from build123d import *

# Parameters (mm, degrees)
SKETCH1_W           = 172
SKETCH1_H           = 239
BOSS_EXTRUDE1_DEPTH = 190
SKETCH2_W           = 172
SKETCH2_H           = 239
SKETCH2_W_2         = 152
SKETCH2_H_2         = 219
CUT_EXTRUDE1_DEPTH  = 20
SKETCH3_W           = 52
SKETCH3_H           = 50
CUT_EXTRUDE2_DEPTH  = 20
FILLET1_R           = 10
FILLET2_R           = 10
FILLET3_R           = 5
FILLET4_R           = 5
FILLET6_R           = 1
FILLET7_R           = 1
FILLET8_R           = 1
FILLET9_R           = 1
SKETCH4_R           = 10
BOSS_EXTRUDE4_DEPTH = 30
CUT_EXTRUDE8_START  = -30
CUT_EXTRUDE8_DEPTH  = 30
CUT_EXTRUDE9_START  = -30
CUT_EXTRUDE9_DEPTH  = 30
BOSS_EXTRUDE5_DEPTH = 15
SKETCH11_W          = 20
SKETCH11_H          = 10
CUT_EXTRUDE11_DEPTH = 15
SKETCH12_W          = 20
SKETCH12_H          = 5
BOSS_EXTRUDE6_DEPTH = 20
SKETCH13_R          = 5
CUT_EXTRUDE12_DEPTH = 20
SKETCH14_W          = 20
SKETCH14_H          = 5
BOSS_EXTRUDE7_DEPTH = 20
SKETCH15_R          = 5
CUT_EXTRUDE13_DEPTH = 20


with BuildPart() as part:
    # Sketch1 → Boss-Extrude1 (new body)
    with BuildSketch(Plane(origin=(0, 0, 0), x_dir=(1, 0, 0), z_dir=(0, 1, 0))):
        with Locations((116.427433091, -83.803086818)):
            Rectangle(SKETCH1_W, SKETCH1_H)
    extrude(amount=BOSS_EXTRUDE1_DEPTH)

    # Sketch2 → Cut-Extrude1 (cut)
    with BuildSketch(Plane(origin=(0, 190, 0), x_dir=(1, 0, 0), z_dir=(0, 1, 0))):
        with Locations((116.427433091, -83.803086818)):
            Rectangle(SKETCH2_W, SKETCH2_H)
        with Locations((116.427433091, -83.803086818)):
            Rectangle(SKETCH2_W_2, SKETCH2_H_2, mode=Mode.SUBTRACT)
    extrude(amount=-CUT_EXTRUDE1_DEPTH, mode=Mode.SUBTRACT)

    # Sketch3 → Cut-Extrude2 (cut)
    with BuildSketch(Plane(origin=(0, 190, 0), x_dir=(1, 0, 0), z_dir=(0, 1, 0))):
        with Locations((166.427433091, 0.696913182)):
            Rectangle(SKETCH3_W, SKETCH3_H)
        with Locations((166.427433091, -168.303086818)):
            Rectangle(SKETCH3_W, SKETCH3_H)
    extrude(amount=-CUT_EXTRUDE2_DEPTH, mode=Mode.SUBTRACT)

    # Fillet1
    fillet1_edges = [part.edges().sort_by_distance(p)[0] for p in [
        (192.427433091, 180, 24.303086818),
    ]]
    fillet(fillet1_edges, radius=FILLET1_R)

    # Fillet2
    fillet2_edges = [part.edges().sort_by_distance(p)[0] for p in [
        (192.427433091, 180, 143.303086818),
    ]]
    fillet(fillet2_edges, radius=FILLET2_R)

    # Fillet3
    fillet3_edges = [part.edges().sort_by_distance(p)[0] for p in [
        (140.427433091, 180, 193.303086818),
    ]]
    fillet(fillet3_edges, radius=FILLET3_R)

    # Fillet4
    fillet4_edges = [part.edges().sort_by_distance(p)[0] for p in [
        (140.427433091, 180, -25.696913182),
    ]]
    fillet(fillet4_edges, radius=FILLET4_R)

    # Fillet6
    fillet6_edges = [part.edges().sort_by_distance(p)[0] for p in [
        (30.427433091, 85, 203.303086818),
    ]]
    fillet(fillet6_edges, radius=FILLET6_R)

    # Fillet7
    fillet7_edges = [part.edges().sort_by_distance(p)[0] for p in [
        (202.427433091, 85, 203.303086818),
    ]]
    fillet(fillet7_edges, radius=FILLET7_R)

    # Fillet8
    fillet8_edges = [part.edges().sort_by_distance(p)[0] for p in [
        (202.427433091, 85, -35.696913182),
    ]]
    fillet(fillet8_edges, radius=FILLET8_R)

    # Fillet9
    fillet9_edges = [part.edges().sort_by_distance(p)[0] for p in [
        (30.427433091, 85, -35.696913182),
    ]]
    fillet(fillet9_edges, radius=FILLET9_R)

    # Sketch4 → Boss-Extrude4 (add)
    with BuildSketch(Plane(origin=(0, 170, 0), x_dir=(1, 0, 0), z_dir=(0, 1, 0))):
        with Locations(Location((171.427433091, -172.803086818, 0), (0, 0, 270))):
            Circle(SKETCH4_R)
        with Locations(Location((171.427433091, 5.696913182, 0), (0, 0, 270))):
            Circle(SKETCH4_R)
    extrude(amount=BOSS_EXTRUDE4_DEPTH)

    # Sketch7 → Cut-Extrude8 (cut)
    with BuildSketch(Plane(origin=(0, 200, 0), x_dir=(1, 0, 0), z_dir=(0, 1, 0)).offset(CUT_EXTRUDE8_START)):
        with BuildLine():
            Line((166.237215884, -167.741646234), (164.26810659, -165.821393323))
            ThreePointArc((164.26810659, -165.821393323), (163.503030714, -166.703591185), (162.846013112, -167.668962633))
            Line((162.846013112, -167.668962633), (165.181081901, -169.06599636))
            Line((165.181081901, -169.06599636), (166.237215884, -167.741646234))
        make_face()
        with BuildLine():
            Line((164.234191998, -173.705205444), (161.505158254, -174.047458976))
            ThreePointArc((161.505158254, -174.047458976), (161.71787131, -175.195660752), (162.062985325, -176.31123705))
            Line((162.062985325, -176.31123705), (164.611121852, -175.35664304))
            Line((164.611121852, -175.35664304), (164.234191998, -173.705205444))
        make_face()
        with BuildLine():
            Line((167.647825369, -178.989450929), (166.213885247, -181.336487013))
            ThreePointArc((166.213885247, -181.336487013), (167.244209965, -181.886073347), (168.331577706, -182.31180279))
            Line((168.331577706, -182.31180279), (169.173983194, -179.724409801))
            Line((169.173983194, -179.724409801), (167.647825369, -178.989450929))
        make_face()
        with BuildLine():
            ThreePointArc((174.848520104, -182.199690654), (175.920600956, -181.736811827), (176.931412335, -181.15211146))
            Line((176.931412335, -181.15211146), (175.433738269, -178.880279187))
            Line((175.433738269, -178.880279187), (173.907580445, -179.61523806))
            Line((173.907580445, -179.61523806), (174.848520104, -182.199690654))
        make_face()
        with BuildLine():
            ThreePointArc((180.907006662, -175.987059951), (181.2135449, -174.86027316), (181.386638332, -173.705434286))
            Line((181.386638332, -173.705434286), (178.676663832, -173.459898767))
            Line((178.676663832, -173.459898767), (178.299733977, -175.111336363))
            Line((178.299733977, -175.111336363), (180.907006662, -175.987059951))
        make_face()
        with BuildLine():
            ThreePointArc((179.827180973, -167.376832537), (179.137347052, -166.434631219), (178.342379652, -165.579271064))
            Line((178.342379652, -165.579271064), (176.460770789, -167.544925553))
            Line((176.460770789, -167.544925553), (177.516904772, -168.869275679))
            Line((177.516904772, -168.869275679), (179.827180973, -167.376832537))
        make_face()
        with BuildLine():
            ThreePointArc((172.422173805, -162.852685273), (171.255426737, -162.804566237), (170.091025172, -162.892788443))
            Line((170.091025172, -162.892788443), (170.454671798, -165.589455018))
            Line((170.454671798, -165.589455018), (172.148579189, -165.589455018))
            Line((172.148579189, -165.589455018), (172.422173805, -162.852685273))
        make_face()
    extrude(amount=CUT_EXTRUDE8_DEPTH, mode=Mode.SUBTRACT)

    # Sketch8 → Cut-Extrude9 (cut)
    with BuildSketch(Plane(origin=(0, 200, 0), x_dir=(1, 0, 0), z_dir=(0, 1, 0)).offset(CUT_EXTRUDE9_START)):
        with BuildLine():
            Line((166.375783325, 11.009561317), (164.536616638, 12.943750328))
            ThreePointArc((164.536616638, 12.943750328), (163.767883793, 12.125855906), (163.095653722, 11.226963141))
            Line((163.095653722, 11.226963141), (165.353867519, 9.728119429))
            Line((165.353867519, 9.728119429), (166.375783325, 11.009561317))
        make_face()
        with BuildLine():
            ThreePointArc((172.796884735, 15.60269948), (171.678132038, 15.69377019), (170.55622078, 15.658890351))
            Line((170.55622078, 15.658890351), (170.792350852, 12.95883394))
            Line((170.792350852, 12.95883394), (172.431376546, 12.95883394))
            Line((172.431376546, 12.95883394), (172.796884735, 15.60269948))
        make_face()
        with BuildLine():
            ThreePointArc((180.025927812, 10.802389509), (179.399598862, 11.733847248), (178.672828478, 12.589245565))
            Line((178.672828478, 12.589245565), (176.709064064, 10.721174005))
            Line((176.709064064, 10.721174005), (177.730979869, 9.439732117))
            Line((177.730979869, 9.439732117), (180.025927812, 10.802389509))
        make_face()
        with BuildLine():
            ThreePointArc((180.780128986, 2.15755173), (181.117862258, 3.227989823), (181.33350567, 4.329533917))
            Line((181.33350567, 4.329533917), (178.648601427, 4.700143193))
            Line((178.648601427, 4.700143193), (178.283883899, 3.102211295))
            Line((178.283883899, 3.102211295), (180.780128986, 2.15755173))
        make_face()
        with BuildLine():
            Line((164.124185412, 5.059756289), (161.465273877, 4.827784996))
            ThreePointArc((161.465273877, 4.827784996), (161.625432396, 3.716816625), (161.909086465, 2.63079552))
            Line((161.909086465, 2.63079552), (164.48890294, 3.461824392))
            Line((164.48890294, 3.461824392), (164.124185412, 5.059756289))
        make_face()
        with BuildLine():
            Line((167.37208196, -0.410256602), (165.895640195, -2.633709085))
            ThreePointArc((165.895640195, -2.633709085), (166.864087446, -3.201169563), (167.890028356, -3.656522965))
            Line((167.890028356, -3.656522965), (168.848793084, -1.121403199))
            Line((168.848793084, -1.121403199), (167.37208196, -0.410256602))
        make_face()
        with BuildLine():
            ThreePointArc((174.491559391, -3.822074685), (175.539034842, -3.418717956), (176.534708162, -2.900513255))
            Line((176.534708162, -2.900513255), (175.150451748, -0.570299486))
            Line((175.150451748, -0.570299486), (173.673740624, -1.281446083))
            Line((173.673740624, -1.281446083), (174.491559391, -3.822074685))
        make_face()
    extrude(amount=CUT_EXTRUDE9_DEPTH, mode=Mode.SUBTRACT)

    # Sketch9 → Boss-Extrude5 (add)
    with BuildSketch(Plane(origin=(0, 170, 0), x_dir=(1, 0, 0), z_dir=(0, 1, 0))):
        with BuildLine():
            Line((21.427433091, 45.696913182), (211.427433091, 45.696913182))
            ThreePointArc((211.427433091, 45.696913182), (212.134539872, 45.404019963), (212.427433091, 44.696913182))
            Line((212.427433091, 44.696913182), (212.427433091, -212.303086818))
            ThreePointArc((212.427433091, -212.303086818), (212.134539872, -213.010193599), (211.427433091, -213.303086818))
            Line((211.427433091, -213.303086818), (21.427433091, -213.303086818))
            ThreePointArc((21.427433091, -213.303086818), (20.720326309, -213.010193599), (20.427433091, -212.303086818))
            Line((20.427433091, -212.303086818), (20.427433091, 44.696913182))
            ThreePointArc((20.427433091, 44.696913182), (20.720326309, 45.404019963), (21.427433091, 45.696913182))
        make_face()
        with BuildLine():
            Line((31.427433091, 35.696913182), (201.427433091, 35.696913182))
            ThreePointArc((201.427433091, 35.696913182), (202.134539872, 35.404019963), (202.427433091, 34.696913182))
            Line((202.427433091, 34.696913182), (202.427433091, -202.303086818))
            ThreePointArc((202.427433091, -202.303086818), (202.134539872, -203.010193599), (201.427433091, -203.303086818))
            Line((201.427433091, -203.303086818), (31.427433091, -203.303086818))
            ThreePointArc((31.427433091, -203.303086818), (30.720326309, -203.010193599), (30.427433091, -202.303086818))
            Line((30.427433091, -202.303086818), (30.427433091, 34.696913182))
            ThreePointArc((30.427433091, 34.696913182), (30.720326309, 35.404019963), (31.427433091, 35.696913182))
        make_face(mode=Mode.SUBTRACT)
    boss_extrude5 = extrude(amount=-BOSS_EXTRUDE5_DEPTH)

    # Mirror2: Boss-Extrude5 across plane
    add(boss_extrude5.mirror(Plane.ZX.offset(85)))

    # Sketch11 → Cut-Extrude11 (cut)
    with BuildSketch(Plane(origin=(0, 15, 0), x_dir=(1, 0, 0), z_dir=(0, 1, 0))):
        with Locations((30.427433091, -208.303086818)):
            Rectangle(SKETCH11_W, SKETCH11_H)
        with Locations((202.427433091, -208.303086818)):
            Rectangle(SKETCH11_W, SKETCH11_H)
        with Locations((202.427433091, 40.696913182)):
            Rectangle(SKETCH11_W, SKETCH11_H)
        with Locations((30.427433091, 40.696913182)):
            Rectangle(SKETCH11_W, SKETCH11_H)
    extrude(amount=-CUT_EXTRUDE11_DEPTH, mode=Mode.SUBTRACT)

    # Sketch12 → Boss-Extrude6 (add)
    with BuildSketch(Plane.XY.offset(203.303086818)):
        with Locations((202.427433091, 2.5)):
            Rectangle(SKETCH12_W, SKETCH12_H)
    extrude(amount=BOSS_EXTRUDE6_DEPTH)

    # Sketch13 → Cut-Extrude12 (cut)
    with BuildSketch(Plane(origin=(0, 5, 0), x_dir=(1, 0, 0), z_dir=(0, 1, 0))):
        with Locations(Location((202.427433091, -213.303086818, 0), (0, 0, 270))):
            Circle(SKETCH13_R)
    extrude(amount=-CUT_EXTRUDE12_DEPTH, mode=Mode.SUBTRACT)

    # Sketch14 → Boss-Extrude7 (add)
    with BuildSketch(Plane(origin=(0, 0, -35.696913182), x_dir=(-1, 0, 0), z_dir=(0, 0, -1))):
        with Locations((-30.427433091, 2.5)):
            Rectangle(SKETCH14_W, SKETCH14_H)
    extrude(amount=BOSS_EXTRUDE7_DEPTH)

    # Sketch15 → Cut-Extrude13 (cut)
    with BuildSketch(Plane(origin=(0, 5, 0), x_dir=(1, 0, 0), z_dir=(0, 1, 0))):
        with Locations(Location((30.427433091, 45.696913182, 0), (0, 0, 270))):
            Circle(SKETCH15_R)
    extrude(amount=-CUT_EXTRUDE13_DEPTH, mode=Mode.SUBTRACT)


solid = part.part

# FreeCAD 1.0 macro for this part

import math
import FreeCAD as App
import Part
import Sketcher

V = App.Vector


def edges_at(feature, points):
    """Names of the edges that pass closest to the given points."""
    edges = feature.Shape.Edges
    near = lambda p: min(range(len(edges)), key=lambda i: edges[i].distToShape(Part.Vertex(*p))[0])
    return sorted({f"Edge{near(p) + 1}" for p in points})


def add_polygon(sketch, points):
    """Adds a closed chain of lines whose ends are joined by coincident constraints."""
    first, n = sketch.GeometryCount, len(points)
    for a, b in zip(points, points[1:] + points[:1]):
        sketch.addGeometry(Part.LineSegment(App.Vector(*a, 0), App.Vector(*b, 0)), False)
    for i in range(n):
        sketch.addConstraint(Sketcher.Constraint("Coincident", first + i, 2, first + (i + 1) % n, 1))

doc = App.newDocument("Part")
body = doc.addObject("PartDesign::Body", "Body")

# Sketch on XZ plane
sketch1 = doc.addObject("Sketcher::SketchObject", "Sketch")
body.addObject(sketch1)
sketch1.AttachmentSupport = (doc.XZ_Plane, [""])
sketch1.MapMode = "FlatFace"
add_polygon(sketch1, [(30, -36), (30, 203), (202, 203), (202, -36)])  # lines 0-3
sketch1.addConstraint(Sketcher.Constraint("Vertical", 0))
sketch1.addConstraint(Sketcher.Constraint("Horizontal", 1))
sketch1.addConstraint(Sketcher.Constraint("Vertical", 2))
sketch1.addConstraint(Sketcher.Constraint("Horizontal", 3))
sketch1.addConstraint(Sketcher.Constraint("DistanceX", 1, 1, 1, 2, 172.0))
sketch1.addConstraint(Sketcher.Constraint("DistanceY", 0, 1, 0, 2, 239.0))
sketch1.addConstraint(Sketcher.Constraint("DistanceX", -1, 1, 0, 2, 30.427433))
sketch1.addConstraint(Sketcher.Constraint("DistanceY", -1, 1, 0, 2, 203.303087))
pad1 = doc.addObject("PartDesign::Pad", "Pad")
body.addObject(pad1)
pad1.Profile = sketch1
pad1.Length = 190
pad1.Reversed = True

# Sketch on XZ plane
sketch2 = doc.addObject("Sketcher::SketchObject", "Sketch001")
body.addObject(sketch2)
sketch2.AttachmentSupport = (doc.XZ_Plane, [""])
sketch2.MapMode = "FlatFace"
sketch2.AttachmentOffset = App.Placement(V(0, 0, -190), App.Rotation())
add_polygon(sketch2, [(30, -36), (30, 203), (202, 203), (202, -36)])  # lines 0-3
add_polygon(sketch2, [(192, 193), (40, 193), (40, -26), (192, -26)])  # lines 4-7
sketch2.addConstraint(Sketcher.Constraint("Vertical", 0))
sketch2.addConstraint(Sketcher.Constraint("Horizontal", 1))
sketch2.addConstraint(Sketcher.Constraint("Vertical", 2))
sketch2.addConstraint(Sketcher.Constraint("Horizontal", 3))
sketch2.addConstraint(Sketcher.Constraint("Horizontal", 4))
sketch2.addConstraint(Sketcher.Constraint("Vertical", 5))
sketch2.addConstraint(Sketcher.Constraint("Horizontal", 6))
sketch2.addConstraint(Sketcher.Constraint("Vertical", 7))
sketch2.addConstraint(Sketcher.Constraint("DistanceX", 1, 1, 1, 2, 172.0))
sketch2.addConstraint(Sketcher.Constraint("DistanceX", 4, 2, 4, 1, 152.0))
sketch2.addConstraint(Sketcher.Constraint("DistanceY", 0, 1, 0, 2, 239.0))
sketch2.addConstraint(Sketcher.Constraint("DistanceY", 5, 2, 5, 1, 219.0))
sketch2.addConstraint(Sketcher.Constraint("DistanceX", 0, 2, 4, 2, 10.0))
sketch2.addConstraint(Sketcher.Constraint("DistanceY", 4, 2, 0, 2, 10.0))
sketch2.addConstraint(Sketcher.Constraint("DistanceX", -1, 1, 0, 2, 30.427433))
sketch2.addConstraint(Sketcher.Constraint("DistanceY", -1, 1, 0, 2, 203.303087))
pocket1 = doc.addObject("PartDesign::Pocket", "Pocket")
body.addObject(pocket1)
pocket1.Profile = sketch2
pocket1.Length = 20
pocket1.Reversed = True

# Sketch on XZ plane
sketch3 = doc.addObject("Sketcher::SketchObject", "Sketch002")
body.addObject(sketch3)
sketch3.AttachmentSupport = (doc.XZ_Plane, [""])
sketch3.MapMode = "FlatFace"
sketch3.AttachmentOffset = App.Placement(V(0, 0, -190), App.Rotation())
add_polygon(sketch3, [(140, -26), (140, 24), (192, 24), (192, -26)])  # lines 0-3
add_polygon(sketch3, [(140, 143), (140, 193), (192, 193), (192, 143)])  # lines 4-7
sketch3.addConstraint(Sketcher.Constraint("Vertical", 0))
sketch3.addConstraint(Sketcher.Constraint("Horizontal", 1))
sketch3.addConstraint(Sketcher.Constraint("Vertical", 2))
sketch3.addConstraint(Sketcher.Constraint("Horizontal", 3))
sketch3.addConstraint(Sketcher.Constraint("Vertical", 4))
sketch3.addConstraint(Sketcher.Constraint("Horizontal", 5))
sketch3.addConstraint(Sketcher.Constraint("Vertical", 6))
sketch3.addConstraint(Sketcher.Constraint("Horizontal", 7))
sketch3.addConstraint(Sketcher.Constraint("Vertical", 3, 2, 4, 2))
sketch3.addConstraint(Sketcher.Constraint("Vertical", 2, 2, 5, 2))
sketch3.addConstraint(Sketcher.Constraint("Equal", 2, 4))
sketch3.addConstraint(Sketcher.Constraint("DistanceX", 1, 1, 1, 2, 52.0))
sketch3.addConstraint(Sketcher.Constraint("DistanceY", 0, 1, 0, 2, 50.0))
sketch3.addConstraint(Sketcher.Constraint("DistanceY", 0, 2, 4, 2, 169.0))
sketch3.addConstraint(Sketcher.Constraint("DistanceX", -1, 1, 0, 2, 140.427433))
sketch3.addConstraint(Sketcher.Constraint("DistanceY", -1, 1, 0, 2, 24.303087))
pocket2 = doc.addObject("PartDesign::Pocket", "Pocket001")
body.addObject(pocket2)
pocket2.Profile = sketch3
pocket2.Length = 20
pocket2.Reversed = True
doc.recompute()

fillet = doc.addObject("PartDesign::Fillet", "Fillet")
body.addObject(fillet)
fillet.Base = (pocket2, edges_at(pocket2, [(192.427, 180, 24.303)]))
fillet.Radius = 10
doc.recompute()

fillet2 = doc.addObject("PartDesign::Fillet", "Fillet001")
body.addObject(fillet2)
fillet2.Base = (fillet, edges_at(fillet, [(192.427, 180, 143.303)]))
fillet2.Radius = 10
doc.recompute()

fillet3 = doc.addObject("PartDesign::Fillet", "Fillet002")
body.addObject(fillet3)
fillet3.Base = (fillet2, edges_at(fillet2, [(140.427, 180, 193.303)]))
fillet3.Radius = 5
doc.recompute()

fillet4 = doc.addObject("PartDesign::Fillet", "Fillet003")
body.addObject(fillet4)
fillet4.Base = (fillet3, edges_at(fillet3, [(140.427, 180, -25.697)]))
fillet4.Radius = 5
doc.recompute()

fillet5 = doc.addObject("PartDesign::Fillet", "Fillet004")
body.addObject(fillet5)
fillet5.Base = (fillet4, edges_at(fillet4, [(30.427, 85, 203.303)]))
fillet5.Radius = 1
doc.recompute()

fillet6 = doc.addObject("PartDesign::Fillet", "Fillet005")
body.addObject(fillet6)
fillet6.Base = (fillet5, edges_at(fillet5, [(202.427, 85, 203.303)]))
fillet6.Radius = 1
doc.recompute()

fillet7 = doc.addObject("PartDesign::Fillet", "Fillet006")
body.addObject(fillet7)
fillet7.Base = (fillet6, edges_at(fillet6, [(202.427, 85, -35.697)]))
fillet7.Radius = 1
doc.recompute()

fillet8 = doc.addObject("PartDesign::Fillet", "Fillet007")
body.addObject(fillet8)
fillet8.Base = (fillet7, edges_at(fillet7, [(30.427, 85, -35.697)]))
fillet8.Radius = 1

# Sketch on XZ plane
sketch4 = doc.addObject("Sketcher::SketchObject", "Sketch003")
body.addObject(sketch4)
sketch4.AttachmentSupport = (doc.XZ_Plane, [""])
sketch4.MapMode = "FlatFace"
sketch4.AttachmentOffset = App.Placement(V(0, 0, -170), App.Rotation())
sketch4.addGeometry(Part.Circle(V(171, 173, 0), V(0, 0, 1), 10), False)
sketch4.addGeometry(Part.Circle(V(171, -6, 0), V(0, 0, 1), 10), False)
sketch4.addConstraint(Sketcher.Constraint("Equal", 0, 1))
sketch4.addConstraint(Sketcher.Constraint("Vertical", 0, 3, 1, 3))
sketch4.addConstraint(Sketcher.Constraint("Diameter", 0, 20.0))
sketch4.addConstraint(Sketcher.Constraint("DistanceY", 1, 3, 0, 3, 178.5))
sketch4.addConstraint(Sketcher.Constraint("DistanceX", -1, 1, 0, 3, 171.427433))
sketch4.addConstraint(Sketcher.Constraint("DistanceY", -1, 1, 0, 3, 172.803087))
pad2 = doc.addObject("PartDesign::Pad", "Pad001")
body.addObject(pad2)
pad2.Profile = sketch4
pad2.Length = 30
pad2.Reversed = True

# Sketch on XZ plane
sketch5 = doc.addObject("Sketcher::SketchObject", "Sketch004")
body.addObject(sketch5)
sketch5.AttachmentSupport = (doc.XZ_Plane, [""])
sketch5.MapMode = "FlatFace"
sketch5.AttachmentOffset = App.Placement(V(0, 0, -170), App.Rotation())
sketch5.addGeometry(Part.LineSegment(V(166.2, 167.7, 0), V(164.3, 165.8, 0)), False)
sketch5.addGeometry(Part.ArcOfCircle(Part.Circle(V(171.4, 172.8, 0), V(0, 0, 1), 10), math.radians(-149.11), math.radians(-135.72)), False)
sketch5.addGeometry(Part.LineSegment(V(162.8, 167.7, 0), V(165.2, 169.1, 0)), False)
sketch5.addGeometry(Part.LineSegment(V(165.2, 169.1, 0), V(166.2, 167.7, 0)), False)
sketch5.addGeometry(Part.LineSegment(V(164.2, 173.7, 0), V(161.5, 174, 0)), False)
sketch5.addGeometry(Part.ArcOfCircle(Part.Circle(V(171.4, 172.8, 0), V(0, 0, 1), 10), math.radians(159.46), math.radians(172.85)), False)
sketch5.addGeometry(Part.LineSegment(V(162.1, 176.3, 0), V(164.6, 175.4, 0)), False)
sketch5.addGeometry(Part.LineSegment(V(164.6, 175.4, 0), V(164.2, 173.7, 0)), False)
sketch5.addGeometry(Part.LineSegment(V(167.6, 179, 0), V(166.2, 181.3, 0)), False)
sketch5.addGeometry(Part.ArcOfCircle(Part.Circle(V(171.4, 172.8, 0), V(0, 0, 1), 10), math.radians(108.03), math.radians(121.42)), False)
sketch5.addGeometry(Part.LineSegment(V(168.3, 182.3, 0), V(169.2, 179.7, 0)), False)
sketch5.addGeometry(Part.LineSegment(V(169.2, 179.7, 0), V(167.6, 179, 0)), False)
sketch5.addGeometry(Part.ArcOfCircle(Part.Circle(V(171.4, 172.8, 0), V(0, 0, 1), 10), math.radians(56.61), math.radians(69.99)), False)
sketch5.addGeometry(Part.LineSegment(V(176.9, 181.2, 0), V(175.4, 178.9, 0)), False)
sketch5.addGeometry(Part.LineSegment(V(175.4, 178.9, 0), V(173.9, 179.6, 0)), False)
sketch5.addGeometry(Part.LineSegment(V(173.9, 179.6, 0), V(174.8, 182.2, 0)), False)
sketch5.addGeometry(Part.ArcOfCircle(Part.Circle(V(171.4, 172.8, 0), V(0, 0, 1), 10), math.radians(5.18), math.radians(18.57)), False)
sketch5.addGeometry(Part.LineSegment(V(181.4, 173.7, 0), V(178.7, 173.5, 0)), False)
sketch5.addGeometry(Part.LineSegment(V(178.7, 173.5, 0), V(178.3, 175.1, 0)), False)
sketch5.addGeometry(Part.LineSegment(V(178.3, 175.1, 0), V(180.9, 176, 0)), False)
sketch5.addGeometry(Part.ArcOfCircle(Part.Circle(V(171.4, 172.8, 0), V(0, 0, 1), 10), math.radians(-46.25), math.radians(-32.86)), False)
sketch5.addGeometry(Part.LineSegment(V(178.3, 165.6, 0), V(176.5, 167.5, 0)), False)
sketch5.addGeometry(Part.LineSegment(V(176.5, 167.5, 0), V(177.5, 168.9, 0)), False)
sketch5.addGeometry(Part.LineSegment(V(177.5, 168.9, 0), V(179.8, 167.4, 0)), False)
sketch5.addGeometry(Part.ArcOfCircle(Part.Circle(V(171.4, 172.8, 0), V(0, 0, 1), 10), math.radians(-97.68), math.radians(-84.29)), False)
sketch5.addGeometry(Part.LineSegment(V(170.1, 162.9, 0), V(170.5, 165.6, 0)), False)
sketch5.addGeometry(Part.LineSegment(V(170.5, 165.6, 0), V(172.1, 165.6, 0)), False)
sketch5.addGeometry(Part.LineSegment(V(172.1, 165.6, 0), V(172.4, 162.9, 0)), False)
sketch5.addConstraint(Sketcher.Constraint("Coincident", 0, 2, 1, 2))
sketch5.addConstraint(Sketcher.Constraint("Coincident", 1, 1, 2, 1))
sketch5.addConstraint(Sketcher.Constraint("Coincident", 2, 2, 3, 1))
sketch5.addConstraint(Sketcher.Constraint("Coincident", 3, 2, 0, 1))
sketch5.addConstraint(Sketcher.Constraint("Coincident", 4, 2, 5, 2))
sketch5.addConstraint(Sketcher.Constraint("Coincident", 5, 1, 6, 1))
sketch5.addConstraint(Sketcher.Constraint("Coincident", 6, 2, 7, 1))
sketch5.addConstraint(Sketcher.Constraint("Coincident", 7, 2, 4, 1))
sketch5.addConstraint(Sketcher.Constraint("Coincident", 8, 2, 9, 2))
sketch5.addConstraint(Sketcher.Constraint("Coincident", 9, 1, 10, 1))
sketch5.addConstraint(Sketcher.Constraint("Coincident", 10, 2, 11, 1))
sketch5.addConstraint(Sketcher.Constraint("Coincident", 11, 2, 8, 1))
sketch5.addConstraint(Sketcher.Constraint("Coincident", 12, 1, 13, 1))
sketch5.addConstraint(Sketcher.Constraint("Coincident", 13, 2, 14, 1))
sketch5.addConstraint(Sketcher.Constraint("Coincident", 14, 2, 15, 1))
sketch5.addConstraint(Sketcher.Constraint("Coincident", 15, 2, 12, 2))
sketch5.addConstraint(Sketcher.Constraint("Coincident", 16, 1, 17, 1))
sketch5.addConstraint(Sketcher.Constraint("Coincident", 17, 2, 18, 1))
sketch5.addConstraint(Sketcher.Constraint("Coincident", 18, 2, 19, 1))
sketch5.addConstraint(Sketcher.Constraint("Coincident", 19, 2, 16, 2))
sketch5.addConstraint(Sketcher.Constraint("Coincident", 20, 1, 21, 1))
sketch5.addConstraint(Sketcher.Constraint("Coincident", 21, 2, 22, 1))
sketch5.addConstraint(Sketcher.Constraint("Coincident", 22, 2, 23, 1))
sketch5.addConstraint(Sketcher.Constraint("Coincident", 23, 2, 20, 2))
sketch5.addConstraint(Sketcher.Constraint("Coincident", 24, 1, 25, 1))
sketch5.addConstraint(Sketcher.Constraint("Coincident", 25, 2, 26, 1))
sketch5.addConstraint(Sketcher.Constraint("Coincident", 26, 2, 27, 1))
sketch5.addConstraint(Sketcher.Constraint("Coincident", 27, 2, 24, 2))
sketch5.addConstraint(Sketcher.Constraint("Horizontal", 26))
sketch5.addConstraint(Sketcher.Constraint("Coincident", 5, 3, 1, 3))
sketch5.addConstraint(Sketcher.Constraint("Coincident", 9, 3, 1, 3))
sketch5.addConstraint(Sketcher.Constraint("Coincident", 12, 3, 1, 3))
sketch5.addConstraint(Sketcher.Constraint("Coincident", 16, 3, 1, 3))
sketch5.addConstraint(Sketcher.Constraint("Coincident", 20, 3, 1, 3))
sketch5.addConstraint(Sketcher.Constraint("Coincident", 24, 3, 1, 3))
sketch5.addConstraint(Sketcher.Constraint("Equal", 1, 5))
sketch5.addConstraint(Sketcher.Constraint("Equal", 5, 9))
sketch5.addConstraint(Sketcher.Constraint("Equal", 9, 12))
sketch5.addConstraint(Sketcher.Constraint("Equal", 12, 16))
sketch5.addConstraint(Sketcher.Constraint("Equal", 16, 20))
sketch5.addConstraint(Sketcher.Constraint("Equal", 20, 24))
sketch5.addConstraint(Sketcher.Constraint("Equal", 0, 4))
sketch5.addConstraint(Sketcher.Constraint("Equal", 2, 6))
sketch5.addConstraint(Sketcher.Constraint("Equal", 3, 7))
sketch5.addConstraint(Sketcher.Constraint("Equal", 4, 8))
sketch5.addConstraint(Sketcher.Constraint("Equal", 6, 10))
sketch5.addConstraint(Sketcher.Constraint("Equal", 7, 11))
sketch5.addConstraint(Sketcher.Constraint("Equal", 10, 13))
sketch5.addConstraint(Sketcher.Constraint("Equal", 11, 14))
sketch5.addConstraint(Sketcher.Constraint("Equal", 8, 15))
sketch5.addConstraint(Sketcher.Constraint("Equal", 13, 17))
sketch5.addConstraint(Sketcher.Constraint("Equal", 14, 18))
sketch5.addConstraint(Sketcher.Constraint("Equal", 15, 19))
sketch5.addConstraint(Sketcher.Constraint("Equal", 17, 21))
sketch5.addConstraint(Sketcher.Constraint("Equal", 18, 22))
sketch5.addConstraint(Sketcher.Constraint("Equal", 19, 23))
sketch5.addConstraint(Sketcher.Constraint("Equal", 21, 25))
sketch5.addConstraint(Sketcher.Constraint("Equal", 23, 27))
sketch5.addConstraint(Sketcher.Constraint("Radius", 1, 10.0))
sketch5.addConstraint(Sketcher.Constraint("DistanceY", -1, 1, 17, 2, 173.459899))
sketch5.addConstraint(Sketcher.Constraint("DistanceX", 5, 1, 8, 2, 4.1509))
sketch5.addConstraint(Sketcher.Constraint("DistanceY", 24, 3, 8, 2, 8.5334))
sketch5.addConstraint(Sketcher.Constraint("DistanceY", 10, 2, 12, 1, 1.427702))
sketch5.addConstraint(Sketcher.Constraint("DistanceX", 13, 2, 16, 1, 5.9529))
sketch5.addConstraint(Sketcher.Constraint("DistanceY", 18, 2, 14, 2, 4.503902))
sketch5.addConstraint(Sketcher.Constraint("DistanceX", 20, 1, 23, 2, 1.484801))
sketch5.addConstraint(Sketcher.Constraint("DistanceY", 23, 2, 16, 1, 6.328602))
sketch5.addConstraint(Sketcher.Constraint("DistanceX", 25, 2, 21, 2, 6.006099))
sketch5.addConstraint(Sketcher.Constraint("DistanceX", 26, 2, 20, 1, 6.1938))
sketch5.addConstraint(Sketcher.Constraint("Distance", 0, 2.750411))
sketch5.addConstraint(Sketcher.Constraint("DistanceX", 26, 1, 26, 2, 1.693907))
sketch5.addConstraint(Sketcher.Constraint("DistanceX", -1, 1, 2, 2, 165.181082))
sketch5.addConstraint(Sketcher.Constraint("DistanceX", -1, 1, 4, 2, 161.505158))
sketch5.addConstraint(Sketcher.Constraint("DistanceY", -1, 1, 4, 2, 174.047459))
sketch5.addConstraint(Sketcher.Constraint("DistanceX", -1, 1, 6, 2, 164.611122))
sketch5.addConstraint(Sketcher.Constraint("DistanceX", -1, 1, 7, 2, 164.234192))
sketch5.addConstraint(Sketcher.Constraint("DistanceY", -1, 1, 10, 2, 179.72441))
sketch5.addConstraint(Sketcher.Constraint("DistanceY", -1, 1, 11, 2, 178.989451))
sketch5.addConstraint(Sketcher.Constraint("DistanceX", -1, 1, 15, 2, 174.84852))
sketch5.addConstraint(Sketcher.Constraint("DistanceY", -1, 1, 19, 2, 175.98706))
sketch5.addConstraint(Sketcher.Constraint("DistanceY", -1, 1, 24, 1, 162.892788))
sketch5.addConstraint(Sketcher.Constraint("DistanceY", 0, 2, 1, 1, 1.847569))
sketch5.addConstraint(Sketcher.Constraint("DistanceX", 1, 1, 16, 3, 8.58142))
sketch5.addConstraint(Sketcher.Constraint("DistanceY", 6, 2, 9, 1, 6.95516))
sketch5.addConstraint(Sketcher.Constraint("DistanceX", 24, 1, 27, 2, 2.331149))
pocket3 = doc.addObject("PartDesign::Pocket", "Pocket002")
body.addObject(pocket3)
pocket3.Profile = sketch5
pocket3.Length = 30

# Sketch on XZ plane
sketch6 = doc.addObject("Sketcher::SketchObject", "Sketch005")
body.addObject(sketch6)
sketch6.AttachmentSupport = (doc.XZ_Plane, [""])
sketch6.MapMode = "FlatFace"
sketch6.AttachmentOffset = App.Placement(V(0, 0, -170), App.Rotation())
sketch6.addGeometry(Part.LineSegment(V(166.4, -11, 0), V(164.5, -12.9, 0)), False)
sketch6.addGeometry(Part.ArcOfCircle(Part.Circle(V(171.4, -5.7, 0), V(0, 0, 1), 10), math.radians(-146.43), math.radians(-133.56)), False)
sketch6.addGeometry(Part.LineSegment(V(163.1, -11.2, 0), V(165.4, -9.7, 0)), False)
sketch6.addGeometry(Part.LineSegment(V(165.4, -9.7, 0), V(166.4, -11, 0)), False)
sketch6.addGeometry(Part.ArcOfCircle(Part.Circle(V(171.4, -5.7, 0), V(0, 0, 1), 10), math.radians(-95), math.radians(-82.13)), False)
sketch6.addGeometry(Part.LineSegment(V(170.6, -15.7, 0), V(170.8, -13, 0)), False)
sketch6.addGeometry(Part.LineSegment(V(170.8, -13, 0), V(172.4, -13, 0)), False)
sketch6.addGeometry(Part.LineSegment(V(172.4, -13, 0), V(172.8, -15.6, 0)), False)
sketch6.addGeometry(Part.ArcOfCircle(Part.Circle(V(171.4, -5.7, 0), V(0, 0, 1), 10), math.radians(-43.57), math.radians(-30.7)), False)
sketch6.addGeometry(Part.LineSegment(V(178.7, -12.6, 0), V(176.7, -10.7, 0)), False)
sketch6.addGeometry(Part.LineSegment(V(176.7, -10.7, 0), V(177.7, -9.4, 0)), False)
sketch6.addGeometry(Part.LineSegment(V(177.7, -9.4, 0), V(180, -10.8, 0)), False)
sketch6.addGeometry(Part.ArcOfCircle(Part.Circle(V(171.4, -5.7, 0), V(0, 0, 1), 10), math.radians(7.86), math.radians(20.73)), False)
sketch6.addGeometry(Part.LineSegment(V(181.3, -4.3, 0), V(178.6, -4.7, 0)), False)
sketch6.addGeometry(Part.LineSegment(V(178.6, -4.7, 0), V(178.3, -3.1, 0)), False)
sketch6.addGeometry(Part.LineSegment(V(178.3, -3.1, 0), V(180.8, -2.2, 0)), False)
sketch6.addGeometry(Part.LineSegment(V(164.1, -5.1, 0), V(161.5, -4.8, 0)), False)
sketch6.addGeometry(Part.ArcOfCircle(Part.Circle(V(171.4, -5.7, 0), V(0, 0, 1), 10), math.radians(162.14), math.radians(175.01)), False)
sketch6.addGeometry(Part.LineSegment(V(161.9, -2.6, 0), V(164.5, -3.5, 0)), False)
sketch6.addGeometry(Part.LineSegment(V(164.5, -3.5, 0), V(164.1, -5.1, 0)), False)
sketch6.addGeometry(Part.LineSegment(V(167.4, 0.4, 0), V(165.9, 2.6, 0)), False)
sketch6.addGeometry(Part.ArcOfCircle(Part.Circle(V(171.4, -5.7, 0), V(0, 0, 1), 10), math.radians(110.72), math.radians(123.59)), False)
sketch6.addGeometry(Part.LineSegment(V(167.9, 3.7, 0), V(168.8, 1.1, 0)), False)
sketch6.addGeometry(Part.LineSegment(V(168.8, 1.1, 0), V(167.4, 0.4, 0)), False)
sketch6.addGeometry(Part.ArcOfCircle(Part.Circle(V(171.4, -5.7, 0), V(0, 0, 1), 10), math.radians(59.29), math.radians(72.16)), False)
sketch6.addGeometry(Part.LineSegment(V(176.5, 2.9, 0), V(175.2, 0.6, 0)), False)
sketch6.addGeometry(Part.LineSegment(V(175.2, 0.6, 0), V(173.7, 1.3, 0)), False)
sketch6.addGeometry(Part.LineSegment(V(173.7, 1.3, 0), V(174.5, 3.8, 0)), False)
sketch6.addConstraint(Sketcher.Constraint("Coincident", 0, 2, 1, 2))
sketch6.addConstraint(Sketcher.Constraint("Coincident", 1, 1, 2, 1))
sketch6.addConstraint(Sketcher.Constraint("Coincident", 2, 2, 3, 1))
sketch6.addConstraint(Sketcher.Constraint("Coincident", 3, 2, 0, 1))
sketch6.addConstraint(Sketcher.Constraint("Coincident", 4, 1, 5, 1))
sketch6.addConstraint(Sketcher.Constraint("Coincident", 5, 2, 6, 1))
sketch6.addConstraint(Sketcher.Constraint("Coincident", 6, 2, 7, 1))
sketch6.addConstraint(Sketcher.Constraint("Coincident", 7, 2, 4, 2))
sketch6.addConstraint(Sketcher.Constraint("Coincident", 8, 1, 9, 1))
sketch6.addConstraint(Sketcher.Constraint("Coincident", 9, 2, 10, 1))
sketch6.addConstraint(Sketcher.Constraint("Coincident", 10, 2, 11, 1))
sketch6.addConstraint(Sketcher.Constraint("Coincident", 11, 2, 8, 2))
sketch6.addConstraint(Sketcher.Constraint("Coincident", 12, 1, 13, 1))
sketch6.addConstraint(Sketcher.Constraint("Coincident", 13, 2, 14, 1))
sketch6.addConstraint(Sketcher.Constraint("Coincident", 14, 2, 15, 1))
sketch6.addConstraint(Sketcher.Constraint("Coincident", 15, 2, 12, 2))
sketch6.addConstraint(Sketcher.Constraint("Coincident", 16, 2, 17, 2))
sketch6.addConstraint(Sketcher.Constraint("Coincident", 17, 1, 18, 1))
sketch6.addConstraint(Sketcher.Constraint("Coincident", 18, 2, 19, 1))
sketch6.addConstraint(Sketcher.Constraint("Coincident", 19, 2, 16, 1))
sketch6.addConstraint(Sketcher.Constraint("Coincident", 20, 2, 21, 2))
sketch6.addConstraint(Sketcher.Constraint("Coincident", 21, 1, 22, 1))
sketch6.addConstraint(Sketcher.Constraint("Coincident", 22, 2, 23, 1))
sketch6.addConstraint(Sketcher.Constraint("Coincident", 23, 2, 20, 1))
sketch6.addConstraint(Sketcher.Constraint("Coincident", 24, 1, 25, 1))
sketch6.addConstraint(Sketcher.Constraint("Coincident", 25, 2, 26, 1))
sketch6.addConstraint(Sketcher.Constraint("Coincident", 26, 2, 27, 1))
sketch6.addConstraint(Sketcher.Constraint("Coincident", 27, 2, 24, 2))
sketch6.addConstraint(Sketcher.Constraint("Horizontal", 6))
sketch6.addConstraint(Sketcher.Constraint("Coincident", 4, 3, 1, 3))
sketch6.addConstraint(Sketcher.Constraint("Coincident", 8, 3, 1, 3))
sketch6.addConstraint(Sketcher.Constraint("Coincident", 12, 3, 1, 3))
sketch6.addConstraint(Sketcher.Constraint("Coincident", 17, 3, 1, 3))
sketch6.addConstraint(Sketcher.Constraint("Coincident", 21, 3, 1, 3))
sketch6.addConstraint(Sketcher.Constraint("Coincident", 24, 3, 1, 3))
sketch6.addConstraint(Sketcher.Constraint("Equal", 1, 4))
sketch6.addConstraint(Sketcher.Constraint("Equal", 4, 8))
sketch6.addConstraint(Sketcher.Constraint("Equal", 8, 12))
sketch6.addConstraint(Sketcher.Constraint("Equal", 12, 17))
sketch6.addConstraint(Sketcher.Constraint("Equal", 17, 21))
sketch6.addConstraint(Sketcher.Constraint("Equal", 21, 24))
sketch6.addConstraint(Sketcher.Constraint("Equal", 2, 5))
sketch6.addConstraint(Sketcher.Constraint("Equal", 0, 7))
sketch6.addConstraint(Sketcher.Constraint("Equal", 5, 9))
sketch6.addConstraint(Sketcher.Constraint("Equal", 3, 10))
sketch6.addConstraint(Sketcher.Constraint("Equal", 7, 11))
sketch6.addConstraint(Sketcher.Constraint("Equal", 9, 13))
sketch6.addConstraint(Sketcher.Constraint("Equal", 10, 14))
sketch6.addConstraint(Sketcher.Constraint("Equal", 11, 15))
sketch6.addConstraint(Sketcher.Constraint("Equal", 15, 16))
sketch6.addConstraint(Sketcher.Constraint("Equal", 13, 18))
sketch6.addConstraint(Sketcher.Constraint("Equal", 14, 19))
sketch6.addConstraint(Sketcher.Constraint("Equal", 16, 20))
sketch6.addConstraint(Sketcher.Constraint("Equal", 18, 22))
sketch6.addConstraint(Sketcher.Constraint("Equal", 19, 23))
sketch6.addConstraint(Sketcher.Constraint("Equal", 22, 25))
sketch6.addConstraint(Sketcher.Constraint("Equal", 23, 26))
sketch6.addConstraint(Sketcher.Constraint("Equal", 20, 27))
sketch6.addConstraint(Sketcher.Constraint("Radius", 1, 10.0))
sketch6.addConstraint(Sketcher.Constraint("DistanceY", 7, 2, -1, 1, 15.602699))
sketch6.addConstraint(Sketcher.Constraint("DistanceX", -1, 1, 13, 2, 178.648601))
sketch6.addConstraint(Sketcher.Constraint("DistanceY", -1, 1, 25, 2, 0.570299))
sketch6.addConstraint(Sketcher.Constraint("DistanceY", 1, 1, 3, 2, 0.217402))
sketch6.addConstraint(Sketcher.Constraint("DistanceX", 3, 2, 7, 2, 6.421101))
sketch6.addConstraint(Sketcher.Constraint("DistanceY", 6, 2, 10, 2, 3.519102))
sketch6.addConstraint(Sketcher.Constraint("DistanceX", 8, 1, 11, 2, 1.353099))
sketch6.addConstraint(Sketcher.Constraint("DistanceY", 10, 2, 12, 1, 5.110198))
sketch6.addConstraint(Sketcher.Constraint("DistanceY", 1, 3, 14, 2, 2.594702))
sketch6.addConstraint(Sketcher.Constraint("DistanceX", 11, 2, 15, 2, 0.754201))
sketch6.addConstraint(Sketcher.Constraint("DistanceX", 17, 1, 19, 2, 2.215099))
sketch6.addConstraint(Sketcher.Constraint("Distance", 0, 2.669011))
sketch6.addConstraint(Sketcher.Constraint("Distance", 2, 2.710362))
sketch6.addConstraint(Sketcher.Constraint("DistanceX", 6, 1, 6, 2, 1.639026))
sketch6.addConstraint(Sketcher.Constraint("DistanceY", 0, 2, -1, 1, 12.94375))
sketch6.addConstraint(Sketcher.Constraint("DistanceY", 2, 2, -1, 1, 9.728119))
sketch6.addConstraint(Sketcher.Constraint("DistanceY", 3, 2, -1, 1, 11.009561))
sketch6.addConstraint(Sketcher.Constraint("DistanceX", -1, 1, 4, 1, 170.556221))
sketch6.addConstraint(Sketcher.Constraint("DistanceX", -1, 1, 8, 1, 178.672828))
sketch6.addConstraint(Sketcher.Constraint("DistanceX", -1, 1, 20, 2, 165.89564))
sketch6.addConstraint(Sketcher.Constraint("DistanceX", -1, 1, 21, 1, 167.890028))
sketch6.addConstraint(Sketcher.Constraint("DistanceX", -1, 1, 23, 2, 167.372082))
sketch6.addConstraint(Sketcher.Constraint("DistanceX", -1, 1, 24, 1, 176.534708))
sketch6.addConstraint(Sketcher.Constraint("DistanceX", -1, 1, 27, 2, 174.491559))
sketch6.addConstraint(Sketcher.Constraint("DistanceX", 16, 2, 1, 1, 1.63038))
sketch6.addConstraint(Sketcher.Constraint("DistanceY", 16, 2, 17, 1, 2.196989))
pocket4 = doc.addObject("PartDesign::Pocket", "Pocket003")
body.addObject(pocket4)
pocket4.Profile = sketch6
pocket4.Length = 30

# Sketch on XZ plane
sketch7 = doc.addObject("Sketcher::SketchObject", "Sketch006")
body.addObject(sketch7)
sketch7.AttachmentSupport = (doc.XZ_Plane, [""])
sketch7.MapMode = "FlatFace"
sketch7.AttachmentOffset = App.Placement(V(0, 0, -170), App.Rotation())
sketch7.addGeometry(Part.LineSegment(V(211.4, -45.7, 0), V(21.4, -45.7, 0)), False)
sketch7.addGeometry(Part.ArcOfCircle(Part.Circle(V(21.4, -44.7, 0), V(0, 0, 1), 1), math.radians(180), math.radians(270)), False)
sketch7.addGeometry(Part.LineSegment(V(20.4, -44.7, 0), V(20.4, 212.3, 0)), False)
sketch7.addGeometry(Part.ArcOfCircle(Part.Circle(V(21.4, 212.3, 0), V(0, 0, 1), 1), math.radians(90), math.radians(180)), False)
sketch7.addGeometry(Part.LineSegment(V(21.4, 213.3, 0), V(211.4, 213.3, 0)), False)
sketch7.addGeometry(Part.ArcOfCircle(Part.Circle(V(211.4, 212.3, 0), V(0, 0, 1), 1), math.radians(0), math.radians(90)), False)
sketch7.addGeometry(Part.LineSegment(V(212.4, 212.3, 0), V(212.4, -44.7, 0)), False)
sketch7.addGeometry(Part.ArcOfCircle(Part.Circle(V(211.4, -44.7, 0), V(0, 0, 1), 1), math.radians(-90), math.radians(0)), False)
sketch7.addGeometry(Part.LineSegment(V(31.4, -35.7, 0), V(201.4, -35.7, 0)), False)
sketch7.addGeometry(Part.ArcOfCircle(Part.Circle(V(201.4, -34.7, 0), V(0, 0, 1), 1), math.radians(-90), math.radians(0)), False)
sketch7.addGeometry(Part.LineSegment(V(202.4, -34.7, 0), V(202.4, 202.3, 0)), False)
sketch7.addGeometry(Part.ArcOfCircle(Part.Circle(V(201.4, 202.3, 0), V(0, 0, 1), 1), math.radians(0), math.radians(90)), False)
sketch7.addGeometry(Part.LineSegment(V(201.4, 203.3, 0), V(31.4, 203.3, 0)), False)
sketch7.addGeometry(Part.ArcOfCircle(Part.Circle(V(31.4, 202.3, 0), V(0, 0, 1), 1), math.radians(90), math.radians(180)), False)
sketch7.addGeometry(Part.LineSegment(V(30.4, 202.3, 0), V(30.4, -34.7, 0)), False)
sketch7.addGeometry(Part.ArcOfCircle(Part.Circle(V(31.4, -34.7, 0), V(0, 0, 1), 1), math.radians(180), math.radians(270)), False)
sketch7.addConstraint(Sketcher.Constraint("Tangent", 0, 2, 1, 2))
sketch7.addConstraint(Sketcher.Constraint("Tangent", 1, 1, 2, 1))
sketch7.addConstraint(Sketcher.Constraint("Tangent", 2, 2, 3, 2))
sketch7.addConstraint(Sketcher.Constraint("Tangent", 3, 1, 4, 1))
sketch7.addConstraint(Sketcher.Constraint("Tangent", 4, 2, 5, 2))
sketch7.addConstraint(Sketcher.Constraint("Tangent", 5, 1, 6, 1))
sketch7.addConstraint(Sketcher.Constraint("Tangent", 6, 2, 7, 2))
sketch7.addConstraint(Sketcher.Constraint("Tangent", 7, 1, 0, 1))
sketch7.addConstraint(Sketcher.Constraint("Tangent", 8, 2, 9, 1))
sketch7.addConstraint(Sketcher.Constraint("Tangent", 9, 2, 10, 1))
sketch7.addConstraint(Sketcher.Constraint("Tangent", 10, 2, 11, 1))
sketch7.addConstraint(Sketcher.Constraint("Tangent", 11, 2, 12, 1))
sketch7.addConstraint(Sketcher.Constraint("Tangent", 12, 2, 13, 1))
sketch7.addConstraint(Sketcher.Constraint("Tangent", 13, 2, 14, 1))
sketch7.addConstraint(Sketcher.Constraint("Tangent", 14, 2, 15, 1))
sketch7.addConstraint(Sketcher.Constraint("Tangent", 15, 2, 8, 1))
sketch7.addConstraint(Sketcher.Constraint("Horizontal", 0))
sketch7.addConstraint(Sketcher.Constraint("Vertical", 2))
sketch7.addConstraint(Sketcher.Constraint("Horizontal", 4))
sketch7.addConstraint(Sketcher.Constraint("Vertical", 6))
sketch7.addConstraint(Sketcher.Constraint("Horizontal", 8))
sketch7.addConstraint(Sketcher.Constraint("Vertical", 10))
sketch7.addConstraint(Sketcher.Constraint("Horizontal", 12))
sketch7.addConstraint(Sketcher.Constraint("Vertical", 14))
sketch7.addConstraint(Sketcher.Constraint("Equal", 1, 3))
sketch7.addConstraint(Sketcher.Constraint("Equal", 3, 5))
sketch7.addConstraint(Sketcher.Constraint("Equal", 5, 7))
sketch7.addConstraint(Sketcher.Constraint("Equal", 7, 9))
sketch7.addConstraint(Sketcher.Constraint("Equal", 9, 11))
sketch7.addConstraint(Sketcher.Constraint("Equal", 11, 13))
sketch7.addConstraint(Sketcher.Constraint("Equal", 13, 15))
sketch7.addConstraint(Sketcher.Constraint("Radius", 1, 1.0))
sketch7.addConstraint(Sketcher.Constraint("DistanceX", 0, 2, 0, 1, 190.0))
sketch7.addConstraint(Sketcher.Constraint("DistanceX", 8, 1, 8, 2, 170.0))
sketch7.addConstraint(Sketcher.Constraint("DistanceY", 2, 1, 2, 2, 257.0))
sketch7.addConstraint(Sketcher.Constraint("DistanceY", 10, 1, 10, 2, 237.0))
sketch7.addConstraint(Sketcher.Constraint("DistanceX", 9, 3, 7, 3, 10.0))
sketch7.addConstraint(Sketcher.Constraint("DistanceY", 7, 3, 9, 3, 10.0))
sketch7.addConstraint(Sketcher.Constraint("DistanceX", -1, 1, 1, 3, 21.427433))
sketch7.addConstraint(Sketcher.Constraint("DistanceY", 1, 3, -1, 1, 44.696913))
pad3 = doc.addObject("PartDesign::Pad", "Pad002")
body.addObject(pad3)
pad3.Profile = sketch7
pad3.Length = 15
doc.recompute()

datumplane = doc.addObject("PartDesign::Plane", "DatumPlane")
body.addObject(datumplane)
datumplane.AttachmentSupport = (doc.XZ_Plane, [""])
datumplane.MapMode = "FlatFace"
datumplane.AttachmentOffset = App.Placement(V(0, 0, -85), App.Rotation())
mirrored = doc.addObject("PartDesign::Mirrored", "Mirrored")
body.addObject(mirrored)
mirrored.Originals = [pad3]
mirrored.MirrorPlane = (datumplane, [""])
body.Tip = mirrored

# Sketch on XZ plane
sketch8 = doc.addObject("Sketcher::SketchObject", "Sketch007")
body.addObject(sketch8)
sketch8.AttachmentSupport = (doc.XZ_Plane, [""])
sketch8.MapMode = "FlatFace"
sketch8.AttachmentOffset = App.Placement(V(0, 0, -15), App.Rotation())
add_polygon(sketch8, [(20, 203), (20, 213), (40, 213), (40, 203)])  # lines 0-3
add_polygon(sketch8, [(192, 203), (192, 213), (212, 213), (212, 203)])  # lines 4-7
add_polygon(sketch8, [(192, -46), (192, -36), (212, -36), (212, -46)])  # lines 8-11
add_polygon(sketch8, [(20, -46), (20, -36), (40, -36), (40, -46)])  # lines 12-15
sketch8.addConstraint(Sketcher.Constraint("Vertical", 0))
sketch8.addConstraint(Sketcher.Constraint("Horizontal", 1))
sketch8.addConstraint(Sketcher.Constraint("Vertical", 2))
sketch8.addConstraint(Sketcher.Constraint("Horizontal", 3))
sketch8.addConstraint(Sketcher.Constraint("Vertical", 4))
sketch8.addConstraint(Sketcher.Constraint("Horizontal", 5))
sketch8.addConstraint(Sketcher.Constraint("Vertical", 6))
sketch8.addConstraint(Sketcher.Constraint("Horizontal", 7))
sketch8.addConstraint(Sketcher.Constraint("Vertical", 8))
sketch8.addConstraint(Sketcher.Constraint("Horizontal", 9))
sketch8.addConstraint(Sketcher.Constraint("Vertical", 10))
sketch8.addConstraint(Sketcher.Constraint("Horizontal", 11))
sketch8.addConstraint(Sketcher.Constraint("Vertical", 12))
sketch8.addConstraint(Sketcher.Constraint("Horizontal", 13))
sketch8.addConstraint(Sketcher.Constraint("Vertical", 14))
sketch8.addConstraint(Sketcher.Constraint("Horizontal", 15))
sketch8.addConstraint(Sketcher.Constraint("Horizontal", 1, 2, 4, 2))
sketch8.addConstraint(Sketcher.Constraint("Horizontal", 3, 2, 6, 2))
sketch8.addConstraint(Sketcher.Constraint("Horizontal", 9, 2, 12, 2))
sketch8.addConstraint(Sketcher.Constraint("Horizontal", 11, 2, 14, 2))
sketch8.addConstraint(Sketcher.Constraint("Vertical", 7, 2, 8, 2))
sketch8.addConstraint(Sketcher.Constraint("Vertical", 6, 2, 9, 2))
sketch8.addConstraint(Sketcher.Constraint("Vertical", 3, 2, 12, 2))
sketch8.addConstraint(Sketcher.Constraint("Vertical", 2, 2, 13, 2))
sketch8.addConstraint(Sketcher.Constraint("Equal", 3, 5))
sketch8.addConstraint(Sketcher.Constraint("Equal", 6, 8))
sketch8.addConstraint(Sketcher.Constraint("DistanceX", 1, 1, 1, 2, 20.0))
sketch8.addConstraint(Sketcher.Constraint("DistanceY", 0, 1, 0, 2, 10.0))
sketch8.addConstraint(Sketcher.Constraint("DistanceX", 1, 2, 4, 2, 152.0))
sketch8.addConstraint(Sketcher.Constraint("DistanceY", 8, 2, 7, 2, 239.0))
sketch8.addConstraint(Sketcher.Constraint("DistanceX", -1, 1, 0, 2, 20.427433))
sketch8.addConstraint(Sketcher.Constraint("DistanceY", -1, 1, 0, 2, 213.303087))
pocket5 = doc.addObject("PartDesign::Pocket", "Pocket004")
body.addObject(pocket5)
pocket5.Profile = sketch8
pocket5.Length = 15
pocket5.Reversed = True

# Sketch on XY plane
sketch9 = doc.addObject("Sketcher::SketchObject", "Sketch008")
body.addObject(sketch9)
sketch9.AttachmentSupport = (doc.XY_Plane, [""])
sketch9.MapMode = "FlatFace"
sketch9.AttachmentOffset = App.Placement(V(0, 0, 203.303087), App.Rotation())
add_polygon(sketch9, [(192, 5), (192, 0), (212, 0), (212, 5)])  # lines 0-3
sketch9.addConstraint(Sketcher.Constraint("Vertical", 0))
sketch9.addConstraint(Sketcher.Constraint("Horizontal", 1))
sketch9.addConstraint(Sketcher.Constraint("Vertical", 2))
sketch9.addConstraint(Sketcher.Constraint("Horizontal", 3))
sketch9.addConstraint(Sketcher.Constraint("PointOnObject", 0, 2, -1))
sketch9.addConstraint(Sketcher.Constraint("DistanceX", 1, 1, 1, 2, 20.0))
sketch9.addConstraint(Sketcher.Constraint("DistanceY", 0, 2, 0, 1, 5.0))
sketch9.addConstraint(Sketcher.Constraint("DistanceX", -1, 1, 0, 2, 192.427433))
pad4 = doc.addObject("PartDesign::Pad", "Pad003")
body.addObject(pad4)
pad4.Profile = sketch9
pad4.Length = 20

# Sketch on XZ plane
sketch10 = doc.addObject("Sketcher::SketchObject", "Sketch009")
body.addObject(sketch10)
sketch10.AttachmentSupport = (doc.XZ_Plane, [""])
sketch10.MapMode = "FlatFace"
sketch10.AttachmentOffset = App.Placement(V(0, 0, -5), App.Rotation())
sketch10.addGeometry(Part.Circle(V(202, 213, 0), V(0, 0, 1), 5), False)
sketch10.addConstraint(Sketcher.Constraint("Diameter", 0, 10.0))
sketch10.addConstraint(Sketcher.Constraint("DistanceX", -1, 1, 0, 3, 202.427433))
sketch10.addConstraint(Sketcher.Constraint("DistanceY", -1, 1, 0, 3, 213.303087))
pocket6 = doc.addObject("PartDesign::Pocket", "Pocket005")
body.addObject(pocket6)
pocket6.Profile = sketch10
pocket6.Length = 20
pocket6.Reversed = True

# Sketch on XY plane
sketch11 = doc.addObject("Sketcher::SketchObject", "Sketch010")
body.addObject(sketch11)
sketch11.AttachmentSupport = (doc.XY_Plane, [""])
sketch11.MapMode = "FlatFace"
sketch11.AttachmentOffset = App.Placement(V(0, 0, -35.696913), App.Rotation())
add_polygon(sketch11, [(40, 5), (40, 0), (20, 0), (20, 5)])  # lines 0-3
sketch11.addConstraint(Sketcher.Constraint("Vertical", 0))
sketch11.addConstraint(Sketcher.Constraint("Horizontal", 1))
sketch11.addConstraint(Sketcher.Constraint("Vertical", 2))
sketch11.addConstraint(Sketcher.Constraint("Horizontal", 3))
sketch11.addConstraint(Sketcher.Constraint("PointOnObject", 0, 2, -1))
sketch11.addConstraint(Sketcher.Constraint("DistanceX", 1, 2, 1, 1, 20.0))
sketch11.addConstraint(Sketcher.Constraint("DistanceY", 0, 2, 0, 1, 5.0))
sketch11.addConstraint(Sketcher.Constraint("DistanceX", -1, 1, 0, 2, 40.427433))
pad5 = doc.addObject("PartDesign::Pad", "Pad004")
body.addObject(pad5)
pad5.Profile = sketch11
pad5.Length = 20
pad5.Reversed = True

# Sketch on XZ plane
sketch12 = doc.addObject("Sketcher::SketchObject", "Sketch011")
body.addObject(sketch12)
sketch12.AttachmentSupport = (doc.XZ_Plane, [""])
sketch12.MapMode = "FlatFace"
sketch12.AttachmentOffset = App.Placement(V(0, 0, -5), App.Rotation())
sketch12.addGeometry(Part.Circle(V(30, -46, 0), V(0, 0, 1), 5), False)
sketch12.addConstraint(Sketcher.Constraint("Diameter", 0, 10.0))
sketch12.addConstraint(Sketcher.Constraint("DistanceX", -1, 1, 0, 3, 30.427433))
sketch12.addConstraint(Sketcher.Constraint("DistanceY", 0, 3, -1, 1, 45.696913))
pocket7 = doc.addObject("PartDesign::Pocket", "Pocket006")
body.addObject(pocket7)
pocket7.Profile = sketch12
pocket7.Length = 20
pocket7.Reversed = True

doc.recompute()
